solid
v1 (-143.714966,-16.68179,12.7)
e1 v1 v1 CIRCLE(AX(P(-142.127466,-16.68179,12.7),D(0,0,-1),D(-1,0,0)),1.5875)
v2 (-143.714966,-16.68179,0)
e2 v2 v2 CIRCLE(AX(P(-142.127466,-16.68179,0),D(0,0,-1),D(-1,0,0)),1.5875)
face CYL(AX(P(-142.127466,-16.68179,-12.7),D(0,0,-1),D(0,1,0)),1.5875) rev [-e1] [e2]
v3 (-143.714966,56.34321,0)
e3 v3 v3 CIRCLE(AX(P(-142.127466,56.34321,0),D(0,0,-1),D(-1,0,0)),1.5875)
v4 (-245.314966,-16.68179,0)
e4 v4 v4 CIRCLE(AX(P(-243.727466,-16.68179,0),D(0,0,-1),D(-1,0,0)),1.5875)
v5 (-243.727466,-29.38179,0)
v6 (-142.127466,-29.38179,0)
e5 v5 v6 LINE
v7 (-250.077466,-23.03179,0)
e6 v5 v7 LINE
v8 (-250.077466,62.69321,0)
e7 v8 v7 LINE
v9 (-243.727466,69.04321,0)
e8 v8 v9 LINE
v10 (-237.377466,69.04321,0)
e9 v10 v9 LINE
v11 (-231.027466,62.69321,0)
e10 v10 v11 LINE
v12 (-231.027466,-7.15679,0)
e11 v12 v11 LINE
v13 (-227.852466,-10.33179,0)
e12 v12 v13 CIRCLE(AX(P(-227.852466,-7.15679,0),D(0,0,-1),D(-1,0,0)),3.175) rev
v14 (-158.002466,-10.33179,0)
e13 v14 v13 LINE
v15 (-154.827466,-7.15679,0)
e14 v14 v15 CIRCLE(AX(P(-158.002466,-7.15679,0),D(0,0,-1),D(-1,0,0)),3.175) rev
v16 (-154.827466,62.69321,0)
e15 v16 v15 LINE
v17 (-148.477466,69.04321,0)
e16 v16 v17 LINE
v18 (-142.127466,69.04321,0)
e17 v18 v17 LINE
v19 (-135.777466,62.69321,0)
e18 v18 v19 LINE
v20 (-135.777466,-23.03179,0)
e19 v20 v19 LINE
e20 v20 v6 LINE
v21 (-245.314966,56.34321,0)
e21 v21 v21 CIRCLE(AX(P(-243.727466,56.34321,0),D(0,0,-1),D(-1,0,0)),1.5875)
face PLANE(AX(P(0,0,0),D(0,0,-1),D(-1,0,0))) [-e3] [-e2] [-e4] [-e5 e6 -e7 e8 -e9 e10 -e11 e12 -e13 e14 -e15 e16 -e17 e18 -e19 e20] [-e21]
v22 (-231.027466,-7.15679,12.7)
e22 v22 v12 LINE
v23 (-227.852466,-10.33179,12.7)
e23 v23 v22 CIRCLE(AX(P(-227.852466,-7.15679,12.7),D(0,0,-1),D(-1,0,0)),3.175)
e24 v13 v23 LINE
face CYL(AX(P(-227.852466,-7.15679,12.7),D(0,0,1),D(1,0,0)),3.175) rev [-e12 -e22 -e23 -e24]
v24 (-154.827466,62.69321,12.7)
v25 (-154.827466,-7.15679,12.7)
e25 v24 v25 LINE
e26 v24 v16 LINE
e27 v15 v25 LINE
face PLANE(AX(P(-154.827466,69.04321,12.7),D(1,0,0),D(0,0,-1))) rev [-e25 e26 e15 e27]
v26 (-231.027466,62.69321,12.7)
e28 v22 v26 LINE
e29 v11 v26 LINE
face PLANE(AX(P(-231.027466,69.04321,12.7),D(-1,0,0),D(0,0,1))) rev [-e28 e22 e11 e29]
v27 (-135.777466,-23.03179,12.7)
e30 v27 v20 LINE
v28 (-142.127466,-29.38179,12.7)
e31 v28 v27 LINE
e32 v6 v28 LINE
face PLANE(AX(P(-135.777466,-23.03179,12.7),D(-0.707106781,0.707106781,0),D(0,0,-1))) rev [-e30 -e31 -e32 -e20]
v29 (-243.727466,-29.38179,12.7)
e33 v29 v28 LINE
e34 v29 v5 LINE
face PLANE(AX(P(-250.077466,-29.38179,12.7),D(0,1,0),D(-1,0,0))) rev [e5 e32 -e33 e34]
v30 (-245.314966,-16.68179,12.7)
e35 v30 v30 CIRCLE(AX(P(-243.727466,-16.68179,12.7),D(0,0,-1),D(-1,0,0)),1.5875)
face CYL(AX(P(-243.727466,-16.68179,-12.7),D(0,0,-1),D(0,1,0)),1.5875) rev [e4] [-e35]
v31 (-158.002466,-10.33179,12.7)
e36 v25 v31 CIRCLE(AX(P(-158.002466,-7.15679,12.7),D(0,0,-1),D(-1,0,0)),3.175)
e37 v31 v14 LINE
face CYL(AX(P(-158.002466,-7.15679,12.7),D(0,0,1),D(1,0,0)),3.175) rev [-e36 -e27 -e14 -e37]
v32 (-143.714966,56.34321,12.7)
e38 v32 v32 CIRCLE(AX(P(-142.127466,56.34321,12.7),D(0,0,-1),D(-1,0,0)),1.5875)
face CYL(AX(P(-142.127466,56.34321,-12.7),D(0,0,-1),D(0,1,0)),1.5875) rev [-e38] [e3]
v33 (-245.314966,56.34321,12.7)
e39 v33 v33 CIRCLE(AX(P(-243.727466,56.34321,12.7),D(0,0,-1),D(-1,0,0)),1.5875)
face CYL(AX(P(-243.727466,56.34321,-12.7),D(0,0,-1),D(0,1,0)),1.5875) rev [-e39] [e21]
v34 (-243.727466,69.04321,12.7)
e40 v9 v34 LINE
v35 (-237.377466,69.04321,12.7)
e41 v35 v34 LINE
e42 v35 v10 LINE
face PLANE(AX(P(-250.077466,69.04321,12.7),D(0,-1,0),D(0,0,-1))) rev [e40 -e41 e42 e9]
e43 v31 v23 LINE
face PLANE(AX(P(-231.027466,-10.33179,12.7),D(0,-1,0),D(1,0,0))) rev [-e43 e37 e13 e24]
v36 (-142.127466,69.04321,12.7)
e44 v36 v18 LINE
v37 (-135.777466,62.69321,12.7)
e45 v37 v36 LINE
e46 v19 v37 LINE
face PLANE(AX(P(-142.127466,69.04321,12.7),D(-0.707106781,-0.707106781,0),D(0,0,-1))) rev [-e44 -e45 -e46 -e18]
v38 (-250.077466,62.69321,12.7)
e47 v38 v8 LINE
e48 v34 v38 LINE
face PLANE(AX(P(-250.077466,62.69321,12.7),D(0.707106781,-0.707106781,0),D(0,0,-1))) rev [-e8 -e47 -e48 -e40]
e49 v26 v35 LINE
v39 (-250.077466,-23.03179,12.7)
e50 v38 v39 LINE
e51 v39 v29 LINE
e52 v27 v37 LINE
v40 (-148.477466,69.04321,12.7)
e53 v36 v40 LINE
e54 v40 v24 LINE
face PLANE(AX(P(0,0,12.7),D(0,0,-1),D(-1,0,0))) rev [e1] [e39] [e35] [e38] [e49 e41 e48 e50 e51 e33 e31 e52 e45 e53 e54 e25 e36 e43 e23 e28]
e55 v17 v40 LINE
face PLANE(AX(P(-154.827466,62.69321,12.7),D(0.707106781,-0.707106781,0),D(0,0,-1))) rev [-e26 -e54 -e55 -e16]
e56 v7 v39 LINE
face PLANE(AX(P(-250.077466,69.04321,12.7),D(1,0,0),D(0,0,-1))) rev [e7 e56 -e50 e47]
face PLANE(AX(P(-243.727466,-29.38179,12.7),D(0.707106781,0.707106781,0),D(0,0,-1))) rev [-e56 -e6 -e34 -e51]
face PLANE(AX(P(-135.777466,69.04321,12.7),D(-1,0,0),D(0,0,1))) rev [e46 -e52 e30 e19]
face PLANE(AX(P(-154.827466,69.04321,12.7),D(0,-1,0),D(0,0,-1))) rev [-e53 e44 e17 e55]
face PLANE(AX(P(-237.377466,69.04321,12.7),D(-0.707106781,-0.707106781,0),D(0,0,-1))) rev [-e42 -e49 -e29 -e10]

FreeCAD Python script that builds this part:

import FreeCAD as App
import Part
import Sketcher

V = App.Vector
Q = App.Units.Quantity


def edges_at(feature, points):
    """Names of the edges that pass closest to the given points."""
    edges = feature.Shape.Edges
    near = lambda p: min(range(len(edges)), key=lambda i: edges[i].distToShape(Part.Vertex(*p))[0])
    return sorted({f"Edge{near(p) + 1}" for p in points})


def add_polygon(sketch, points):
    """Adds a closed chain of lines whose ends are joined by coincident constraints."""
    first, n = sketch.GeometryCount, len(points)
    for a, b in zip(points, points[1:] + points[:1]):
        sketch.addGeometry(Part.LineSegment(App.Vector(*a, 0), App.Vector(*b, 0)), False)
    for i in range(n):
        sketch.addConstraint(Sketcher.Constraint("Coincident", first + i, 2, first + (i + 1) % n, 1))

doc = App.newDocument("Part")
params = doc.addObject("Spreadsheet::Sheet", "Params")
for row, (alias, value) in enumerate([
    ("sketch1_width", "3 in"),
    ("sketch1_width2", "4.5 in"),
    ("sketch1_height", "3.125 in"),
    ("sketch1_height2", "3.875 in"),
    ("pad1_length", "0.5 in"),
    ("fillet_radius", "0.125 in"),
    ("chamfer_size", "0.25 in"),
    ("sketch2_diameter", "0.125 in"),
    ("hole_diameter", "0.125 in"),
    ("hole_depth", "1.25 in"),
    ("hole_csink_diameter", "0.4 in"),
], start=1):
    params.set(f"A{row}", alias)
    params.set(f"B{row}", "=" + value)
    params.setAlias(f"B{row}", alias)

body = doc.addObject("PartDesign::Body", "Body")

# Sketch on XY plane
sketch1 = body.newObject("Sketcher::SketchObject", "Sketch")
sketch1.AttachmentSupport = (doc.getObject("XY_Plane"), [""])
sketch1.MapMode = "FlatFace"
add_polygon(sketch1, [(-231, -10), (-231, 69), (-250, 69), (-250, -29), (-136, -29), (-136, 69), (-155, 69), (-155, -10)])  # lines 0-7
sketch1.addConstraint([
    Sketcher.Constraint("Vertical", 0),
    Sketcher.Constraint("Horizontal", 1),
    Sketcher.Constraint("Vertical", 2),
    Sketcher.Constraint("Horizontal", 3),
    Sketcher.Constraint("Vertical", 4),
    Sketcher.Constraint("Horizontal", 5),
    Sketcher.Constraint("Vertical", 6),
    Sketcher.Constraint("Horizontal", 7),
    Sketcher.Constraint("Horizontal", 1, 2, 4, 2),
    Sketcher.Constraint("Equal", 1, 5),
    Sketcher.Constraint("DistanceX", 7, 2, 7, 1, Q("3 in")),
    Sketcher.Constraint("DistanceX", 3, 1, 3, 2, Q("4.5 in")),
    Sketcher.Constraint("DistanceY", 0, 1, 0, 2, Q("3.125 in")),
    Sketcher.Constraint("DistanceY", 2, 2, 2, 1, Q("3.875 in")),
    Sketcher.Constraint("DistanceY", -1, 1, 0, 2, 69.04321),
    Sketcher.Constraint("DistanceX", 0, 2, -1, 1, 231.027466),
])
sketch1.setExpression("Constraints[18]", "Params.sketch1_width")
sketch1.setExpression("Constraints[19]", "Params.sketch1_width2")
sketch1.setExpression("Constraints[20]", "Params.sketch1_height")
sketch1.setExpression("Constraints[21]", "Params.sketch1_height2")
pad1 = body.newObject("PartDesign::Pad", "Pad")
pad1.Profile = sketch1
pad1.setExpression("Length", "Params.pad1_length")
doc.recompute()

fillet = body.newObject("PartDesign::Fillet", "Fillet")
fillet.Base = (pad1, edges_at(pad1, [(-231.027, -10.332, 6.35), (-154.827, -10.332, 6.35)]))
fillet.setExpression("Radius", "Params.fillet_radius")
doc.recompute()

chamfer = body.newObject("PartDesign::Chamfer", "Chamfer")
chamfer.Base = (fillet, edges_at(fillet, [
    (-231.027, 69.043, 6.35),
    (-154.827, 69.043, 6.35),
    (-135.777, 69.043, 6.35),
    (-135.777, -29.382, 6.35),
    (-250.077, -29.382, 6.35),
    (-250.077, 69.043, 6.35),
]))
chamfer.setExpression("Size", "Params.chamfer_size")

# Sketch on XY plane
sketch2 = body.newObject("Sketcher::SketchObject", "Sketch001")
sketch2.AttachmentSupport = (doc.getObject("XY_Plane"), [""])
sketch2.MapMode = "FlatFace"
sketch2.AttachmentOffset = App.Placement(V(0, 0, -0.5 * 25.4), App.Rotation())
sketch2.addGeometry([
    Part.Circle(V(-237.7, -86.5, 0), V(0, 0, 1), 1.6),  # 0
    Part.Circle(V(-237.7, -191.3, 0), V(0, 0, 1), 1.6),  # 1
    Part.Circle(V(-29.4, -53.9, 0), V(0, 0, 1), 1.6),  # 2
    Part.Circle(V(-218.6, -53.9, 0), V(0, 0, 1), 1.6),  # 3
    Part.Circle(V(-124, -53.9, 0), V(0, 0, 1), 1.6),  # 4
    Part.Circle(V(-124, -22.2, 0), V(0, 0, 1), 1.6),  # 5
    Part.Circle(V(-124, 225.3, 0), V(0, 0, 1), 1.6),  # 6
    Part.Circle(V(-124, 86.7, 0), V(0, 0, 1), 1.6),  # 7
    Part.Circle(V(-165, 86.7, 0), V(0, 0, 1), 1.6),  # 8
    Part.Circle(V(-290.8, 86.7, 0), V(0, 0, 1), 1.6),  # 9
    Part.Circle(V(-331.8, 225.3, 0), V(0, 0, 1), 1.6),  # 10
    Part.Circle(V(-331.8, 117.7, 0), V(0, 0, 1), 1.6),  # 11
    Part.Circle(V(-331.8, 10.2, 0), V(0, 0, 1), 1.6),  # 12
    Part.Circle(V(-331.8, -77.9, 0), V(0, 0, 1), 1.6),  # 13
    Part.Circle(V(-331.8, -204.9, 0), V(0, 0, 1), 1.6),  # 14
    Part.Circle(V(83.8, -204.9, 0), V(0, 0, 1), 1.6),  # 15
    Part.Circle(V(83.8, -77.9, 0), V(0, 0, 1), 1.6),  # 16
    Part.Circle(V(83.8, 10.2, 0), V(0, 0, 1), 1.6),  # 17
    Part.Circle(V(83.8, 117.7, 0), V(0, 0, 1), 1.6),  # 18
    Part.Circle(V(83.8, 225.3, 0), V(0, 0, 1), 1.6),  # 19
    Part.Circle(V(42.8, 86.7, 0), V(0, 0, 1), 1.6),  # 20
    Part.Circle(V(-83, 86.7, 0), V(0, 0, 1), 1.6),  # 21
    Part.Circle(V(-10.4, -191.3, 0), V(0, 0, 1), 1.6),  # 22
    Part.Circle(V(-10.4, -86.5, 0), V(0, 0, 1), 1.6),  # 23
    Part.Circle(V(-243.7, -16.7, 0), V(0, 0, 1), 1.6),  # 24
    Part.Circle(V(-243.7, 56.3, 0), V(0, 0, 1), 1.6),  # 25
    Part.Circle(V(-142.1, -16.7, 0), V(0, 0, 1), 1.6),  # 26
    Part.Circle(V(-142.1, 56.3, 0), V(0, 0, 1), 1.6),  # 27
], False)
sketch2.addConstraint([
    Sketcher.Constraint("Equal", 0, 1),
    Sketcher.Constraint("Equal", 1, 2),
    Sketcher.Constraint("Equal", 2, 3),
    Sketcher.Constraint("Equal", 3, 4),
    Sketcher.Constraint("Equal", 4, 5),
    Sketcher.Constraint("Equal", 5, 6),
    Sketcher.Constraint("Equal", 6, 7),
    Sketcher.Constraint("Equal", 7, 8),
    Sketcher.Constraint("Equal", 8, 9),
    Sketcher.Constraint("Equal", 9, 10),
    Sketcher.Constraint("Equal", 10, 11),
    Sketcher.Constraint("Equal", 11, 12),
    Sketcher.Constraint("Equal", 12, 13),
    Sketcher.Constraint("Equal", 13, 14),
    Sketcher.Constraint("Equal", 14, 15),
    Sketcher.Constraint("Equal", 15, 16),
    Sketcher.Constraint("Equal", 16, 17),
    Sketcher.Constraint("Equal", 17, 18),
    Sketcher.Constraint("Equal", 18, 19),
    Sketcher.Constraint("Equal", 19, 20),
    Sketcher.Constraint("Equal", 20, 21),
    Sketcher.Constraint("Equal", 21, 22),
    Sketcher.Constraint("Equal", 22, 23),
    Sketcher.Constraint("Equal", 23, 24),
    Sketcher.Constraint("Equal", 24, 25),
    Sketcher.Constraint("Equal", 25, 26),
    Sketcher.Constraint("Equal", 26, 27),
    Sketcher.Constraint("Horizontal", 2, 3, 3, 3),
    Sketcher.Constraint("Horizontal", 3, 3, 4, 3),
    Sketcher.Constraint("Horizontal", 7, 3, 8, 3),
    Sketcher.Constraint("Horizontal", 8, 3, 9, 3),
    Sketcher.Constraint("Horizontal", 6, 3, 10, 3),
    Sketcher.Constraint("Horizontal", 14, 3, 15, 3),
    Sketcher.Constraint("Horizontal", 13, 3, 16, 3),
    Sketcher.Constraint("Horizontal", 12, 3, 17, 3),
    Sketcher.Constraint("Horizontal", 11, 3, 18, 3),
    Sketcher.Constraint("Horizontal", 10, 3, 19, 3),
    Sketcher.Constraint("Horizontal", 9, 3, 20, 3),
    Sketcher.Constraint("Horizontal", 20, 3, 21, 3),
    Sketcher.Constraint("Horizontal", 1, 3, 22, 3),
    Sketcher.Constraint("Horizontal", 0, 3, 23, 3),
    Sketcher.Constraint("Horizontal", 24, 3, 26, 3),
    Sketcher.Constraint("Horizontal", 25, 3, 27, 3),
    Sketcher.Constraint("Vertical", 0, 3, 1, 3),
    Sketcher.Constraint("Vertical", 4, 3, 5, 3),
    Sketcher.Constraint("Vertical", 5, 3, 6, 3),
    Sketcher.Constraint("Vertical", 6, 3, 7, 3),
    Sketcher.Constraint("Vertical", 10, 3, 11, 3),
    Sketcher.Constraint("Vertical", 11, 3, 12, 3),
    Sketcher.Constraint("Vertical", 12, 3, 13, 3),
    Sketcher.Constraint("Vertical", 13, 3, 14, 3),
    Sketcher.Constraint("Vertical", 15, 3, 16, 3),
    Sketcher.Constraint("Vertical", 16, 3, 17, 3),
    Sketcher.Constraint("Vertical", 17, 3, 18, 3),
    Sketcher.Constraint("Vertical", 18, 3, 19, 3),
    Sketcher.Constraint("Vertical", 22, 3, 23, 3),
    Sketcher.Constraint("Vertical", 24, 3, 25, 3),
    Sketcher.Constraint("Vertical", 26, 3, 27, 3),
    Sketcher.Constraint("Diameter", 0, Q("0.125 in")),
    Sketcher.Constraint("DistanceY", 14, 3, 13, 3, Q("5 in")),
    Sketcher.Constraint("DistanceX", 24, 3, 26, 3, Q("4 in")),
    Sketcher.Constraint("DistanceX", 0, 3, 3, 3, Q("0.75 in")),
    Sketcher.Constraint("DistanceY", 4, 3, 5, 3, Q("1.25 in")),
    Sketcher.Constraint("DistanceX", 2, 3, 22, 3, Q("0.75 in")),
    Sketcher.Constraint("DistanceY", 24, 3, 25, 3, Q("2.875 in")),
    Sketcher.Constraint("DistanceX", 9, 3, -1, 1, 290.800299),
    Sketcher.Constraint("DistanceX", 21, 3, -1, 1, 83.025299),
    Sketcher.Constraint("DistanceX", 0, 3, 2, 3, 208.25),
    Sketcher.Constraint("DistanceX", 4, 3, 2, 3, 94.6),
    Sketcher.Constraint("DistanceX", 10, 3, 6, 3, 207.775),
    Sketcher.Constraint("DistanceY", 13, 3, 3, 3, 23.95),
    Sketcher.Constraint("DistanceX", 2, 3, 15, 3, 113.175),
    Sketcher.Constraint("DistanceX", 24, 3, 3, 3, 25.123),
    Sketcher.Constraint("DistanceY", 24, 3, 9, 3, 103.365),
    Sketcher.Constraint("DistanceY", 2, 3, -1, 1, 53.912851),
    Sketcher.Constraint("DistanceY", -1, 1, 7, 3, 86.68321),
    Sketcher.Constraint("DistanceY", -1, 1, 11, 3, 117.734269),
    Sketcher.Constraint("DistanceY", 0, 3, 6, 3, 311.74616),
    Sketcher.Constraint("DistanceX", 0, 3, -1, 1, 237.654466),
    Sketcher.Constraint("DistanceY", 0, 3, -1, 1, 86.479518),
    Sketcher.Constraint("DistanceY", 1, 3, -1, 1, 191.346184),
    Sketcher.Constraint("DistanceX", 8, 3, -1, 1, 164.983633),
    Sketcher.Constraint("DistanceY", -1, 1, 12, 3, 10.201896),
    Sketcher.Constraint("DistanceX", -1, 1, 20, 3, 42.791367),
])
sketch2.setExpression("Constraints[58]", "Params.sketch2_diameter")
doc.recompute()
hole = body.newObject("PartDesign::Hole", "Hole")
hole.Profile = sketch2
hole.ThreadType = "None"
hole.setExpression("Diameter", "Params.hole_diameter")
hole.DepthType = "Dimension"
hole.setExpression("Depth", "Params.hole_depth")
hole.DrillPoint = "Angled"
hole.DrillPointAngle = 118
hole.HoleCutType = "Countersink"
hole.setExpression("HoleCutDiameter", "Params.hole_csink_diameter")
hole.HoleCutCountersinkAngle = 82
hole.Reversed = True

doc.recompute()
